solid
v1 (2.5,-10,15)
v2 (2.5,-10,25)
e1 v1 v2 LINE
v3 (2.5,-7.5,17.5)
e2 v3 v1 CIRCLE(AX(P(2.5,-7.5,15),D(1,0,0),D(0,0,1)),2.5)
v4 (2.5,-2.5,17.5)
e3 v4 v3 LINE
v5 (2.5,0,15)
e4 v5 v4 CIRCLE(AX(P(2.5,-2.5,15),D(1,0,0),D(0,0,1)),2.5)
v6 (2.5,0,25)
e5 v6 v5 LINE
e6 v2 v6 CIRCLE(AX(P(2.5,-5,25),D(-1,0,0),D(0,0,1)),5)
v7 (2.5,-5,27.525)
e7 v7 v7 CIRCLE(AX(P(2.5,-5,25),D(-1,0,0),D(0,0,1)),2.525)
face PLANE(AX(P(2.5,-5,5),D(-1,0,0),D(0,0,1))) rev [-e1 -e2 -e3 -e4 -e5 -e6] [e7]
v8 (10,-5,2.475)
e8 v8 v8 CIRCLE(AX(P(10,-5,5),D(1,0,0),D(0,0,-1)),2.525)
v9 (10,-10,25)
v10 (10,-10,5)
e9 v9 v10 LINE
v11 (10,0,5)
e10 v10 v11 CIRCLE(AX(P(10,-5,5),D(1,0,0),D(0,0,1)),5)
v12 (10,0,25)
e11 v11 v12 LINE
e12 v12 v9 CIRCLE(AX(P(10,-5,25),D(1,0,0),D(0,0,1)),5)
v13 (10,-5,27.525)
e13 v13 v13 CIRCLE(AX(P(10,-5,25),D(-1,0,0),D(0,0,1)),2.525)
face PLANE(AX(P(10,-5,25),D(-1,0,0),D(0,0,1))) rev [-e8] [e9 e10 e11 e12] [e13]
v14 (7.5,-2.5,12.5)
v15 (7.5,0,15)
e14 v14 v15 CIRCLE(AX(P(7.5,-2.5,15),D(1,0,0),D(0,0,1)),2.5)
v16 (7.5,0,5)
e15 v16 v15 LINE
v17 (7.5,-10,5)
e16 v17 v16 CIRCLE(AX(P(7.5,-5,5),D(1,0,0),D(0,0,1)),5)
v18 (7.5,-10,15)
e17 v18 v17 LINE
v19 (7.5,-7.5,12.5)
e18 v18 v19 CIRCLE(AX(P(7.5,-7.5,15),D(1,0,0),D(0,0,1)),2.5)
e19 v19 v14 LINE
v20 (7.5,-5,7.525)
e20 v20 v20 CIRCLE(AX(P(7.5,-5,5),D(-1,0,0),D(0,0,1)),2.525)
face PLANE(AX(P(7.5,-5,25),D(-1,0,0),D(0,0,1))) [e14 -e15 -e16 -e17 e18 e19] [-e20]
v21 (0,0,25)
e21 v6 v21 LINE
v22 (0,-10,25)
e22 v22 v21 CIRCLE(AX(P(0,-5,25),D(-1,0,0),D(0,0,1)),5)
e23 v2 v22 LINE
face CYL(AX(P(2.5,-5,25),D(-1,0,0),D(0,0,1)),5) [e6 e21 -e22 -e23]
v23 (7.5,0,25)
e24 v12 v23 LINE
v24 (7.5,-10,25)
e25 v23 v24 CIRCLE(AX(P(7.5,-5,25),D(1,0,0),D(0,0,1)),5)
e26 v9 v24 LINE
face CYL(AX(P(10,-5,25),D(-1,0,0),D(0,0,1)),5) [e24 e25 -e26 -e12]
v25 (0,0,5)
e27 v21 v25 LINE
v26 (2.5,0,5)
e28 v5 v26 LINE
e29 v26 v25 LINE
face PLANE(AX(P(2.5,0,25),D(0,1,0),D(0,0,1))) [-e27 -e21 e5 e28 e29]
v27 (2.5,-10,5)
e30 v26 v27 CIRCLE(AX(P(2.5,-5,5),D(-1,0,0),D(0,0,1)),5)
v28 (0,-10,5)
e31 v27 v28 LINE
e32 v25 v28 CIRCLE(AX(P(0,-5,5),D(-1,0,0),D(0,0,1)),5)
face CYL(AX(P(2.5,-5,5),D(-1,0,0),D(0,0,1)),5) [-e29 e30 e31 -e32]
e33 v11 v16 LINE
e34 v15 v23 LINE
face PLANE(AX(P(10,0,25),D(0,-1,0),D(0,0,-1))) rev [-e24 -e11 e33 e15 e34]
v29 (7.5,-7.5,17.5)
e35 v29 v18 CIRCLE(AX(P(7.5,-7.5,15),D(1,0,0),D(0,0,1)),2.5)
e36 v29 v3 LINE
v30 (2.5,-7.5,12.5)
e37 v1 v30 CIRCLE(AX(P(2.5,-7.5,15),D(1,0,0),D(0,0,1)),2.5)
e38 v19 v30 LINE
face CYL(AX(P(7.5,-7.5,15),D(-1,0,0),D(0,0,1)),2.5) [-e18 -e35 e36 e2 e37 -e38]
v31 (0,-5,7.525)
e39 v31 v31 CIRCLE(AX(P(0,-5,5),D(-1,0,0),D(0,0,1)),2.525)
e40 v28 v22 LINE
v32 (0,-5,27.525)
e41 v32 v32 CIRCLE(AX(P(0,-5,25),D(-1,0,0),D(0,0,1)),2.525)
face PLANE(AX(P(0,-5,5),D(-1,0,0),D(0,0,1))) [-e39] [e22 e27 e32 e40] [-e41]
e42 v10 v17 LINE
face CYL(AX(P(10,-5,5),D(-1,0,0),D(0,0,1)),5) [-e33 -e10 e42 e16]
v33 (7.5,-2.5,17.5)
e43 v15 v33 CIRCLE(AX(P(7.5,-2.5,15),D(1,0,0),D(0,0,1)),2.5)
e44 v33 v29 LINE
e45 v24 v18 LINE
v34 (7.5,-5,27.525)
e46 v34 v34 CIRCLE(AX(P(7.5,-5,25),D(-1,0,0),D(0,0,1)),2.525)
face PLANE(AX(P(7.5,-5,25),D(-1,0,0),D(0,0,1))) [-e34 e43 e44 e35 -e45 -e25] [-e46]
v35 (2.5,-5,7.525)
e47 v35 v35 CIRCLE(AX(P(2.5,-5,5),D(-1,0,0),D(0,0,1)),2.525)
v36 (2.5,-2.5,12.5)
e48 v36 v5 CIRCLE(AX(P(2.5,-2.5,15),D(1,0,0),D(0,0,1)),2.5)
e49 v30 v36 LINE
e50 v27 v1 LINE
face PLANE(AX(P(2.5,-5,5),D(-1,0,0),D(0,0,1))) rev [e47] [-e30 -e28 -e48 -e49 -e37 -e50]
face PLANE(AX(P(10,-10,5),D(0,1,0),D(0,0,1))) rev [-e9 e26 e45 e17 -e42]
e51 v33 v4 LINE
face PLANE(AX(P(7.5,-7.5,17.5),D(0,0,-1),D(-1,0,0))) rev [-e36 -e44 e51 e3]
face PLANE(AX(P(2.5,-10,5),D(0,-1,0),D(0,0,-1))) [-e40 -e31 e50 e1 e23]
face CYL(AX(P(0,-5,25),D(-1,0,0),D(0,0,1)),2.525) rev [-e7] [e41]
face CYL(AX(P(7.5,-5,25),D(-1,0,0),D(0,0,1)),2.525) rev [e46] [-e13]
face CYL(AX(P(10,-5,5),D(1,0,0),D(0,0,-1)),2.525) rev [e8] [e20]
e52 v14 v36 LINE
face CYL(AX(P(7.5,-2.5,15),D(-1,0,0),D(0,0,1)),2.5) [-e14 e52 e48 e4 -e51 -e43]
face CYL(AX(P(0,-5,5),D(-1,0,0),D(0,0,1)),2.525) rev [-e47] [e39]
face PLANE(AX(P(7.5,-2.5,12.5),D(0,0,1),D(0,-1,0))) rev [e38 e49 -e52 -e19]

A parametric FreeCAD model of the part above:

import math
import FreeCAD as App
import Part
import Sketcher
from FreeCAD import Vector
Q = App.Units.Quantity

doc = App.newDocument("Part")
body = doc.addObject("PartDesign::Body", "Body")

# Sketch on YZ plane
sketch1 = doc.addObject("Sketcher::SketchObject", "Sketch")
body.addObject(sketch1)
sketch1.AttachmentSupport = (doc.YZ_Plane, [""])
sketch1.MapMode = "FlatFace"
sketch1.addGeometry([
    Part.LineSegment(Vector(-10, 5, 0), Vector(-10, 25, 0)),
    Part.ArcOfCircle(Part.Circle(Vector(-5, 25, 0), Vector(0, 0, 1), 5), math.radians(0), math.radians(180)),
    Part.LineSegment(Vector(0, 25, 0), Vector(0, 5, 0)),
    Part.ArcOfCircle(Part.Circle(Vector(-5, 5, 0), Vector(0, 0, 1), 5), math.radians(180), math.radians(360)),
], False)
sketch1.addConstraint([
    Sketcher.Constraint("Tangent", 0, 2, 1, 2),
    Sketcher.Constraint("Tangent", 1, 1, 2, 1),
    Sketcher.Constraint("Tangent", 2, 2, 3, 2),
    Sketcher.Constraint("Tangent", 3, 1, 0, 1),
    Sketcher.Constraint("Vertical", 0),
    Sketcher.Constraint("Vertical", 2),
    Sketcher.Constraint("PointOnObject", 1, 1, -2),
    Sketcher.Constraint("Radius", 1, Q("5 mm")),
    Sketcher.Constraint("DistanceY", 0, 1, 0, 2, Q("20 mm")),
    Sketcher.Constraint("DistanceY", -1, 1, 1, 3, Q("25 mm")),
])
pad1 = doc.addObject("PartDesign::Pad", "Pad")
body.addObject(pad1)
pad1.Profile = sketch1
pad1.Length = 2.5

# Sketch on YZ plane
sketch2 = doc.addObject("Sketcher::SketchObject", "Sketch001")
body.addObject(sketch2)
sketch2.AttachmentSupport = (doc.YZ_Plane, [""])
sketch2.MapMode = "FlatFace"
sketch2.AttachmentOffset = App.Placement(Vector(0, 0, 2.5), App.Rotation())
sketch2.addGeometry([
    Part.LineSegment(Vector(-2.5, 17.5, 0), Vector(-7.5, 17.5, 0)),
    Part.ArcOfCircle(Part.Circle(Vector(-7.5, 15, 0), Vector(0, 0, 1), 2.5), math.radians(90), math.radians(270)),
    Part.LineSegment(Vector(-7.5, 12.5, 0), Vector(-2.5, 12.5, 0)),
    Part.ArcOfCircle(Part.Circle(Vector(-2.5, 15, 0), Vector(0, 0, 1), 2.5), math.radians(-90), math.radians(90)),
], False)
sketch2.addConstraint([
    Sketcher.Constraint("Tangent", 0, 2, 1, 1),
    Sketcher.Constraint("Tangent", 1, 2, 2, 1),
    Sketcher.Constraint("Tangent", 2, 2, 3, 1),
    Sketcher.Constraint("Tangent", 3, 2, 0, 1),
    Sketcher.Constraint("Horizontal", 0),
    Sketcher.Constraint("Horizontal", 2),
    Sketcher.Constraint("Radius", 1, Q("2.5 mm")),
    Sketcher.Constraint("DistanceX", 0, 2, 0, 1, Q("5 mm")),
    Sketcher.Constraint("DistanceY", -1, 1, 1, 3, Q("15 mm")),
    Sketcher.Constraint("DistanceX", 1, 3, -1, 1, Q("7.5 mm")),
])
pad2 = doc.addObject("PartDesign::Pad", "Pad001")
body.addObject(pad2)
pad2.Profile = sketch2
pad2.Length = 5

# Sketch on YZ plane
sketch3 = doc.addObject("Sketcher::SketchObject", "Sketch002")
body.addObject(sketch3)
sketch3.AttachmentSupport = (doc.YZ_Plane, [""])
sketch3.MapMode = "FlatFace"
sketch3.AttachmentOffset = App.Placement(Vector(0, 0, 7.5), App.Rotation())
sketch3.addGeometry([
    Part.LineSegment(Vector(0, 5, 0), Vector(0, 25, 0)),
    Part.ArcOfCircle(Part.Circle(Vector(-5, 25, 0), Vector(0, 0, 1), 5), math.radians(0), math.radians(180)),
    Part.LineSegment(Vector(-10, 25, 0), Vector(-10, 5, 0)),
    Part.ArcOfCircle(Part.Circle(Vector(-5, 5, 0), Vector(0, 0, 1), 5), math.radians(180), math.radians(360)),
], False)
sketch3.addConstraint([
    Sketcher.Constraint("Tangent", 0, 2, 1, 1),
    Sketcher.Constraint("Tangent", 1, 2, 2, 1),
    Sketcher.Constraint("Tangent", 2, 2, 3, 1),
    Sketcher.Constraint("Tangent", 3, 2, 0, 1),
    Sketcher.Constraint("Vertical", 0),
    Sketcher.Constraint("Vertical", 2),
    Sketcher.Constraint("PointOnObject", 0, 2, -2),
    Sketcher.Constraint("Radius", 1, Q("5 mm")),
    Sketcher.Constraint("DistanceY", 0, 1, 0, 2, Q("20 mm")),
    Sketcher.Constraint("DistanceY", -1, 1, 1, 3, Q("25 mm")),
])
pad3 = doc.addObject("PartDesign::Pad", "Pad002")
body.addObject(pad3)
pad3.Profile = sketch3
pad3.Length = 2.5

# Sketch on YZ plane
sketch4 = doc.addObject("Sketcher::SketchObject", "Sketch003")
body.addObject(sketch4)
sketch4.AttachmentSupport = (doc.YZ_Plane, [""])
sketch4.MapMode = "FlatFace"
sketch4.AttachmentOffset = App.Placement(Vector(0, 0, 10), App.Rotation())
sketch4.addGeometry(Part.Circle(Vector(-5, 5, 0), Vector(0, 0, 1), 2.525), False)
sketch4.addConstraint([
    Sketcher.Constraint("Diameter", 0, Q("5.05 mm")),
    Sketcher.Constraint("DistanceX", 0, 3, -1, 1, Q("5 mm")),
    Sketcher.Constraint("DistanceY", -1, 1, 0, 3, Q("5 mm")),
])
doc.recompute()
hole = doc.addObject("PartDesign::Hole", "Hole")
body.addObject(hole)
hole.Profile = sketch4
hole.ThreadType = "None"
hole.Diameter = 5.05
hole.DepthType = "Dimension"
hole.Depth = 2.5
hole.DrillPoint = "Flat"

# Sketch on YZ plane
sketch5 = doc.addObject("Sketcher::SketchObject", "Sketch004")
body.addObject(sketch5)
sketch5.AttachmentSupport = (doc.YZ_Plane, [""])
sketch5.MapMode = "FlatFace"
sketch5.AttachmentOffset = App.Placement(Vector(0, 0, 7.5), App.Rotation())
sketch5.addGeometry(Part.Circle(Vector(-5, 25, 0), Vector(0, 0, 1), 2.525), False)
sketch5.addConstraint([
    Sketcher.Constraint("Diameter", 0, Q("5.05 mm")),
    Sketcher.Constraint("DistanceX", 0, 3, -1, 1, Q("5 mm")),
    Sketcher.Constraint("DistanceY", -1, 1, 0, 3, Q("25 mm")),
])
doc.recompute()
hole2 = doc.addObject("PartDesign::Hole", "Hole001")
body.addObject(hole2)
hole2.Profile = sketch5
hole2.ThreadType = "None"
hole2.Diameter = 5.05
hole2.DepthType = "Dimension"
hole2.Depth = 2.5
hole2.DrillPoint = "Flat"
hole2.Reversed = True

# Sketch on YZ plane
sketch6 = doc.addObject("Sketcher::SketchObject", "Sketch005")
body.addObject(sketch6)
sketch6.AttachmentSupport = (doc.YZ_Plane, [""])
sketch6.MapMode = "FlatFace"
sketch6.addGeometry([
    Part.Circle(Vector(-5, 25, 0), Vector(0, 0, 1), 2.525),
    Part.Circle(Vector(-5, 5, 0), Vector(0, 0, 1), 2.525),
], False)
sketch6.addConstraint([
    Sketcher.Constraint("Equal", 0, 1),
    Sketcher.Constraint("Vertical", 0, 3, 1, 3),
    Sketcher.Constraint("Diameter", 0, Q("5.05 mm")),
    Sketcher.Constraint("DistanceX", 0, 3, -1, 1, Q("5 mm")),
    Sketcher.Constraint("DistanceY", -1, 1, 0, 3, Q("25 mm")),
    Sketcher.Constraint("DistanceY", -1, 1, 1, 3, Q("5 mm")),
])
doc.recompute()
hole3 = doc.addObject("PartDesign::Hole", "Hole002")
body.addObject(hole3)
hole3.Profile = sketch6
hole3.ThreadType = "None"
hole3.Diameter = 5.05
hole3.DepthType = "Dimension"
hole3.Depth = 10
hole3.DrillPoint = "Flat"
hole3.Reversed = True

doc.recompute()
